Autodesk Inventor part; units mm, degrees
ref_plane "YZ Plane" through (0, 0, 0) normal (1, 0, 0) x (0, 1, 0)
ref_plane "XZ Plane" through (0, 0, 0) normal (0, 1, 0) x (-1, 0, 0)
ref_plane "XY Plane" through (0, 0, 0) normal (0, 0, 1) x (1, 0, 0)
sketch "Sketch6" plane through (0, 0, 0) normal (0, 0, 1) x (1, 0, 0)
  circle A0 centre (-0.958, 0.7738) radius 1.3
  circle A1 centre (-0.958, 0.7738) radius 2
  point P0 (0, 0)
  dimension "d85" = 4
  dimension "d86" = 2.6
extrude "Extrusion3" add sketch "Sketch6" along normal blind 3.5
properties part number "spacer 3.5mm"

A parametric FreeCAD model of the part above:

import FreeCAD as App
import Part
import Sketcher

doc = App.newDocument("Part")
body = doc.addObject("PartDesign::Body", "Body")

# Sketch on XY plane
sketch1 = doc.addObject("Sketcher::SketchObject", "Sketch")
body.addObject(sketch1)
sketch1.AttachmentSupport = (doc.XY_Plane, [""])
sketch1.MapMode = "FlatFace"
sketch1.addGeometry([
    Part.Circle(App.Vector(-0.958, 0.7738, 0), App.Vector(0, 0, 1), 2),
    Part.Circle(App.Vector(-0.958, 0.7738, 0), App.Vector(0, 0, 1), 1.3),
], False)
sketch1.addConstraint([
    Sketcher.Constraint("Coincident", 1, 3, 0, 3),
    Sketcher.Constraint("Diameter", 0, 4.0),
    Sketcher.Constraint("Diameter", 1, 2.6),
    Sketcher.Constraint("DistanceX", 0, 3, -1, 1, 0.958),
    Sketcher.Constraint("DistanceY", -1, 1, 0, 3, 0.7738),
])
pad1 = doc.addObject("PartDesign::Pad", "Pad")
body.addObject(pad1)
pad1.Profile = sketch1
pad1.Length = 3.5

doc.recompute()
